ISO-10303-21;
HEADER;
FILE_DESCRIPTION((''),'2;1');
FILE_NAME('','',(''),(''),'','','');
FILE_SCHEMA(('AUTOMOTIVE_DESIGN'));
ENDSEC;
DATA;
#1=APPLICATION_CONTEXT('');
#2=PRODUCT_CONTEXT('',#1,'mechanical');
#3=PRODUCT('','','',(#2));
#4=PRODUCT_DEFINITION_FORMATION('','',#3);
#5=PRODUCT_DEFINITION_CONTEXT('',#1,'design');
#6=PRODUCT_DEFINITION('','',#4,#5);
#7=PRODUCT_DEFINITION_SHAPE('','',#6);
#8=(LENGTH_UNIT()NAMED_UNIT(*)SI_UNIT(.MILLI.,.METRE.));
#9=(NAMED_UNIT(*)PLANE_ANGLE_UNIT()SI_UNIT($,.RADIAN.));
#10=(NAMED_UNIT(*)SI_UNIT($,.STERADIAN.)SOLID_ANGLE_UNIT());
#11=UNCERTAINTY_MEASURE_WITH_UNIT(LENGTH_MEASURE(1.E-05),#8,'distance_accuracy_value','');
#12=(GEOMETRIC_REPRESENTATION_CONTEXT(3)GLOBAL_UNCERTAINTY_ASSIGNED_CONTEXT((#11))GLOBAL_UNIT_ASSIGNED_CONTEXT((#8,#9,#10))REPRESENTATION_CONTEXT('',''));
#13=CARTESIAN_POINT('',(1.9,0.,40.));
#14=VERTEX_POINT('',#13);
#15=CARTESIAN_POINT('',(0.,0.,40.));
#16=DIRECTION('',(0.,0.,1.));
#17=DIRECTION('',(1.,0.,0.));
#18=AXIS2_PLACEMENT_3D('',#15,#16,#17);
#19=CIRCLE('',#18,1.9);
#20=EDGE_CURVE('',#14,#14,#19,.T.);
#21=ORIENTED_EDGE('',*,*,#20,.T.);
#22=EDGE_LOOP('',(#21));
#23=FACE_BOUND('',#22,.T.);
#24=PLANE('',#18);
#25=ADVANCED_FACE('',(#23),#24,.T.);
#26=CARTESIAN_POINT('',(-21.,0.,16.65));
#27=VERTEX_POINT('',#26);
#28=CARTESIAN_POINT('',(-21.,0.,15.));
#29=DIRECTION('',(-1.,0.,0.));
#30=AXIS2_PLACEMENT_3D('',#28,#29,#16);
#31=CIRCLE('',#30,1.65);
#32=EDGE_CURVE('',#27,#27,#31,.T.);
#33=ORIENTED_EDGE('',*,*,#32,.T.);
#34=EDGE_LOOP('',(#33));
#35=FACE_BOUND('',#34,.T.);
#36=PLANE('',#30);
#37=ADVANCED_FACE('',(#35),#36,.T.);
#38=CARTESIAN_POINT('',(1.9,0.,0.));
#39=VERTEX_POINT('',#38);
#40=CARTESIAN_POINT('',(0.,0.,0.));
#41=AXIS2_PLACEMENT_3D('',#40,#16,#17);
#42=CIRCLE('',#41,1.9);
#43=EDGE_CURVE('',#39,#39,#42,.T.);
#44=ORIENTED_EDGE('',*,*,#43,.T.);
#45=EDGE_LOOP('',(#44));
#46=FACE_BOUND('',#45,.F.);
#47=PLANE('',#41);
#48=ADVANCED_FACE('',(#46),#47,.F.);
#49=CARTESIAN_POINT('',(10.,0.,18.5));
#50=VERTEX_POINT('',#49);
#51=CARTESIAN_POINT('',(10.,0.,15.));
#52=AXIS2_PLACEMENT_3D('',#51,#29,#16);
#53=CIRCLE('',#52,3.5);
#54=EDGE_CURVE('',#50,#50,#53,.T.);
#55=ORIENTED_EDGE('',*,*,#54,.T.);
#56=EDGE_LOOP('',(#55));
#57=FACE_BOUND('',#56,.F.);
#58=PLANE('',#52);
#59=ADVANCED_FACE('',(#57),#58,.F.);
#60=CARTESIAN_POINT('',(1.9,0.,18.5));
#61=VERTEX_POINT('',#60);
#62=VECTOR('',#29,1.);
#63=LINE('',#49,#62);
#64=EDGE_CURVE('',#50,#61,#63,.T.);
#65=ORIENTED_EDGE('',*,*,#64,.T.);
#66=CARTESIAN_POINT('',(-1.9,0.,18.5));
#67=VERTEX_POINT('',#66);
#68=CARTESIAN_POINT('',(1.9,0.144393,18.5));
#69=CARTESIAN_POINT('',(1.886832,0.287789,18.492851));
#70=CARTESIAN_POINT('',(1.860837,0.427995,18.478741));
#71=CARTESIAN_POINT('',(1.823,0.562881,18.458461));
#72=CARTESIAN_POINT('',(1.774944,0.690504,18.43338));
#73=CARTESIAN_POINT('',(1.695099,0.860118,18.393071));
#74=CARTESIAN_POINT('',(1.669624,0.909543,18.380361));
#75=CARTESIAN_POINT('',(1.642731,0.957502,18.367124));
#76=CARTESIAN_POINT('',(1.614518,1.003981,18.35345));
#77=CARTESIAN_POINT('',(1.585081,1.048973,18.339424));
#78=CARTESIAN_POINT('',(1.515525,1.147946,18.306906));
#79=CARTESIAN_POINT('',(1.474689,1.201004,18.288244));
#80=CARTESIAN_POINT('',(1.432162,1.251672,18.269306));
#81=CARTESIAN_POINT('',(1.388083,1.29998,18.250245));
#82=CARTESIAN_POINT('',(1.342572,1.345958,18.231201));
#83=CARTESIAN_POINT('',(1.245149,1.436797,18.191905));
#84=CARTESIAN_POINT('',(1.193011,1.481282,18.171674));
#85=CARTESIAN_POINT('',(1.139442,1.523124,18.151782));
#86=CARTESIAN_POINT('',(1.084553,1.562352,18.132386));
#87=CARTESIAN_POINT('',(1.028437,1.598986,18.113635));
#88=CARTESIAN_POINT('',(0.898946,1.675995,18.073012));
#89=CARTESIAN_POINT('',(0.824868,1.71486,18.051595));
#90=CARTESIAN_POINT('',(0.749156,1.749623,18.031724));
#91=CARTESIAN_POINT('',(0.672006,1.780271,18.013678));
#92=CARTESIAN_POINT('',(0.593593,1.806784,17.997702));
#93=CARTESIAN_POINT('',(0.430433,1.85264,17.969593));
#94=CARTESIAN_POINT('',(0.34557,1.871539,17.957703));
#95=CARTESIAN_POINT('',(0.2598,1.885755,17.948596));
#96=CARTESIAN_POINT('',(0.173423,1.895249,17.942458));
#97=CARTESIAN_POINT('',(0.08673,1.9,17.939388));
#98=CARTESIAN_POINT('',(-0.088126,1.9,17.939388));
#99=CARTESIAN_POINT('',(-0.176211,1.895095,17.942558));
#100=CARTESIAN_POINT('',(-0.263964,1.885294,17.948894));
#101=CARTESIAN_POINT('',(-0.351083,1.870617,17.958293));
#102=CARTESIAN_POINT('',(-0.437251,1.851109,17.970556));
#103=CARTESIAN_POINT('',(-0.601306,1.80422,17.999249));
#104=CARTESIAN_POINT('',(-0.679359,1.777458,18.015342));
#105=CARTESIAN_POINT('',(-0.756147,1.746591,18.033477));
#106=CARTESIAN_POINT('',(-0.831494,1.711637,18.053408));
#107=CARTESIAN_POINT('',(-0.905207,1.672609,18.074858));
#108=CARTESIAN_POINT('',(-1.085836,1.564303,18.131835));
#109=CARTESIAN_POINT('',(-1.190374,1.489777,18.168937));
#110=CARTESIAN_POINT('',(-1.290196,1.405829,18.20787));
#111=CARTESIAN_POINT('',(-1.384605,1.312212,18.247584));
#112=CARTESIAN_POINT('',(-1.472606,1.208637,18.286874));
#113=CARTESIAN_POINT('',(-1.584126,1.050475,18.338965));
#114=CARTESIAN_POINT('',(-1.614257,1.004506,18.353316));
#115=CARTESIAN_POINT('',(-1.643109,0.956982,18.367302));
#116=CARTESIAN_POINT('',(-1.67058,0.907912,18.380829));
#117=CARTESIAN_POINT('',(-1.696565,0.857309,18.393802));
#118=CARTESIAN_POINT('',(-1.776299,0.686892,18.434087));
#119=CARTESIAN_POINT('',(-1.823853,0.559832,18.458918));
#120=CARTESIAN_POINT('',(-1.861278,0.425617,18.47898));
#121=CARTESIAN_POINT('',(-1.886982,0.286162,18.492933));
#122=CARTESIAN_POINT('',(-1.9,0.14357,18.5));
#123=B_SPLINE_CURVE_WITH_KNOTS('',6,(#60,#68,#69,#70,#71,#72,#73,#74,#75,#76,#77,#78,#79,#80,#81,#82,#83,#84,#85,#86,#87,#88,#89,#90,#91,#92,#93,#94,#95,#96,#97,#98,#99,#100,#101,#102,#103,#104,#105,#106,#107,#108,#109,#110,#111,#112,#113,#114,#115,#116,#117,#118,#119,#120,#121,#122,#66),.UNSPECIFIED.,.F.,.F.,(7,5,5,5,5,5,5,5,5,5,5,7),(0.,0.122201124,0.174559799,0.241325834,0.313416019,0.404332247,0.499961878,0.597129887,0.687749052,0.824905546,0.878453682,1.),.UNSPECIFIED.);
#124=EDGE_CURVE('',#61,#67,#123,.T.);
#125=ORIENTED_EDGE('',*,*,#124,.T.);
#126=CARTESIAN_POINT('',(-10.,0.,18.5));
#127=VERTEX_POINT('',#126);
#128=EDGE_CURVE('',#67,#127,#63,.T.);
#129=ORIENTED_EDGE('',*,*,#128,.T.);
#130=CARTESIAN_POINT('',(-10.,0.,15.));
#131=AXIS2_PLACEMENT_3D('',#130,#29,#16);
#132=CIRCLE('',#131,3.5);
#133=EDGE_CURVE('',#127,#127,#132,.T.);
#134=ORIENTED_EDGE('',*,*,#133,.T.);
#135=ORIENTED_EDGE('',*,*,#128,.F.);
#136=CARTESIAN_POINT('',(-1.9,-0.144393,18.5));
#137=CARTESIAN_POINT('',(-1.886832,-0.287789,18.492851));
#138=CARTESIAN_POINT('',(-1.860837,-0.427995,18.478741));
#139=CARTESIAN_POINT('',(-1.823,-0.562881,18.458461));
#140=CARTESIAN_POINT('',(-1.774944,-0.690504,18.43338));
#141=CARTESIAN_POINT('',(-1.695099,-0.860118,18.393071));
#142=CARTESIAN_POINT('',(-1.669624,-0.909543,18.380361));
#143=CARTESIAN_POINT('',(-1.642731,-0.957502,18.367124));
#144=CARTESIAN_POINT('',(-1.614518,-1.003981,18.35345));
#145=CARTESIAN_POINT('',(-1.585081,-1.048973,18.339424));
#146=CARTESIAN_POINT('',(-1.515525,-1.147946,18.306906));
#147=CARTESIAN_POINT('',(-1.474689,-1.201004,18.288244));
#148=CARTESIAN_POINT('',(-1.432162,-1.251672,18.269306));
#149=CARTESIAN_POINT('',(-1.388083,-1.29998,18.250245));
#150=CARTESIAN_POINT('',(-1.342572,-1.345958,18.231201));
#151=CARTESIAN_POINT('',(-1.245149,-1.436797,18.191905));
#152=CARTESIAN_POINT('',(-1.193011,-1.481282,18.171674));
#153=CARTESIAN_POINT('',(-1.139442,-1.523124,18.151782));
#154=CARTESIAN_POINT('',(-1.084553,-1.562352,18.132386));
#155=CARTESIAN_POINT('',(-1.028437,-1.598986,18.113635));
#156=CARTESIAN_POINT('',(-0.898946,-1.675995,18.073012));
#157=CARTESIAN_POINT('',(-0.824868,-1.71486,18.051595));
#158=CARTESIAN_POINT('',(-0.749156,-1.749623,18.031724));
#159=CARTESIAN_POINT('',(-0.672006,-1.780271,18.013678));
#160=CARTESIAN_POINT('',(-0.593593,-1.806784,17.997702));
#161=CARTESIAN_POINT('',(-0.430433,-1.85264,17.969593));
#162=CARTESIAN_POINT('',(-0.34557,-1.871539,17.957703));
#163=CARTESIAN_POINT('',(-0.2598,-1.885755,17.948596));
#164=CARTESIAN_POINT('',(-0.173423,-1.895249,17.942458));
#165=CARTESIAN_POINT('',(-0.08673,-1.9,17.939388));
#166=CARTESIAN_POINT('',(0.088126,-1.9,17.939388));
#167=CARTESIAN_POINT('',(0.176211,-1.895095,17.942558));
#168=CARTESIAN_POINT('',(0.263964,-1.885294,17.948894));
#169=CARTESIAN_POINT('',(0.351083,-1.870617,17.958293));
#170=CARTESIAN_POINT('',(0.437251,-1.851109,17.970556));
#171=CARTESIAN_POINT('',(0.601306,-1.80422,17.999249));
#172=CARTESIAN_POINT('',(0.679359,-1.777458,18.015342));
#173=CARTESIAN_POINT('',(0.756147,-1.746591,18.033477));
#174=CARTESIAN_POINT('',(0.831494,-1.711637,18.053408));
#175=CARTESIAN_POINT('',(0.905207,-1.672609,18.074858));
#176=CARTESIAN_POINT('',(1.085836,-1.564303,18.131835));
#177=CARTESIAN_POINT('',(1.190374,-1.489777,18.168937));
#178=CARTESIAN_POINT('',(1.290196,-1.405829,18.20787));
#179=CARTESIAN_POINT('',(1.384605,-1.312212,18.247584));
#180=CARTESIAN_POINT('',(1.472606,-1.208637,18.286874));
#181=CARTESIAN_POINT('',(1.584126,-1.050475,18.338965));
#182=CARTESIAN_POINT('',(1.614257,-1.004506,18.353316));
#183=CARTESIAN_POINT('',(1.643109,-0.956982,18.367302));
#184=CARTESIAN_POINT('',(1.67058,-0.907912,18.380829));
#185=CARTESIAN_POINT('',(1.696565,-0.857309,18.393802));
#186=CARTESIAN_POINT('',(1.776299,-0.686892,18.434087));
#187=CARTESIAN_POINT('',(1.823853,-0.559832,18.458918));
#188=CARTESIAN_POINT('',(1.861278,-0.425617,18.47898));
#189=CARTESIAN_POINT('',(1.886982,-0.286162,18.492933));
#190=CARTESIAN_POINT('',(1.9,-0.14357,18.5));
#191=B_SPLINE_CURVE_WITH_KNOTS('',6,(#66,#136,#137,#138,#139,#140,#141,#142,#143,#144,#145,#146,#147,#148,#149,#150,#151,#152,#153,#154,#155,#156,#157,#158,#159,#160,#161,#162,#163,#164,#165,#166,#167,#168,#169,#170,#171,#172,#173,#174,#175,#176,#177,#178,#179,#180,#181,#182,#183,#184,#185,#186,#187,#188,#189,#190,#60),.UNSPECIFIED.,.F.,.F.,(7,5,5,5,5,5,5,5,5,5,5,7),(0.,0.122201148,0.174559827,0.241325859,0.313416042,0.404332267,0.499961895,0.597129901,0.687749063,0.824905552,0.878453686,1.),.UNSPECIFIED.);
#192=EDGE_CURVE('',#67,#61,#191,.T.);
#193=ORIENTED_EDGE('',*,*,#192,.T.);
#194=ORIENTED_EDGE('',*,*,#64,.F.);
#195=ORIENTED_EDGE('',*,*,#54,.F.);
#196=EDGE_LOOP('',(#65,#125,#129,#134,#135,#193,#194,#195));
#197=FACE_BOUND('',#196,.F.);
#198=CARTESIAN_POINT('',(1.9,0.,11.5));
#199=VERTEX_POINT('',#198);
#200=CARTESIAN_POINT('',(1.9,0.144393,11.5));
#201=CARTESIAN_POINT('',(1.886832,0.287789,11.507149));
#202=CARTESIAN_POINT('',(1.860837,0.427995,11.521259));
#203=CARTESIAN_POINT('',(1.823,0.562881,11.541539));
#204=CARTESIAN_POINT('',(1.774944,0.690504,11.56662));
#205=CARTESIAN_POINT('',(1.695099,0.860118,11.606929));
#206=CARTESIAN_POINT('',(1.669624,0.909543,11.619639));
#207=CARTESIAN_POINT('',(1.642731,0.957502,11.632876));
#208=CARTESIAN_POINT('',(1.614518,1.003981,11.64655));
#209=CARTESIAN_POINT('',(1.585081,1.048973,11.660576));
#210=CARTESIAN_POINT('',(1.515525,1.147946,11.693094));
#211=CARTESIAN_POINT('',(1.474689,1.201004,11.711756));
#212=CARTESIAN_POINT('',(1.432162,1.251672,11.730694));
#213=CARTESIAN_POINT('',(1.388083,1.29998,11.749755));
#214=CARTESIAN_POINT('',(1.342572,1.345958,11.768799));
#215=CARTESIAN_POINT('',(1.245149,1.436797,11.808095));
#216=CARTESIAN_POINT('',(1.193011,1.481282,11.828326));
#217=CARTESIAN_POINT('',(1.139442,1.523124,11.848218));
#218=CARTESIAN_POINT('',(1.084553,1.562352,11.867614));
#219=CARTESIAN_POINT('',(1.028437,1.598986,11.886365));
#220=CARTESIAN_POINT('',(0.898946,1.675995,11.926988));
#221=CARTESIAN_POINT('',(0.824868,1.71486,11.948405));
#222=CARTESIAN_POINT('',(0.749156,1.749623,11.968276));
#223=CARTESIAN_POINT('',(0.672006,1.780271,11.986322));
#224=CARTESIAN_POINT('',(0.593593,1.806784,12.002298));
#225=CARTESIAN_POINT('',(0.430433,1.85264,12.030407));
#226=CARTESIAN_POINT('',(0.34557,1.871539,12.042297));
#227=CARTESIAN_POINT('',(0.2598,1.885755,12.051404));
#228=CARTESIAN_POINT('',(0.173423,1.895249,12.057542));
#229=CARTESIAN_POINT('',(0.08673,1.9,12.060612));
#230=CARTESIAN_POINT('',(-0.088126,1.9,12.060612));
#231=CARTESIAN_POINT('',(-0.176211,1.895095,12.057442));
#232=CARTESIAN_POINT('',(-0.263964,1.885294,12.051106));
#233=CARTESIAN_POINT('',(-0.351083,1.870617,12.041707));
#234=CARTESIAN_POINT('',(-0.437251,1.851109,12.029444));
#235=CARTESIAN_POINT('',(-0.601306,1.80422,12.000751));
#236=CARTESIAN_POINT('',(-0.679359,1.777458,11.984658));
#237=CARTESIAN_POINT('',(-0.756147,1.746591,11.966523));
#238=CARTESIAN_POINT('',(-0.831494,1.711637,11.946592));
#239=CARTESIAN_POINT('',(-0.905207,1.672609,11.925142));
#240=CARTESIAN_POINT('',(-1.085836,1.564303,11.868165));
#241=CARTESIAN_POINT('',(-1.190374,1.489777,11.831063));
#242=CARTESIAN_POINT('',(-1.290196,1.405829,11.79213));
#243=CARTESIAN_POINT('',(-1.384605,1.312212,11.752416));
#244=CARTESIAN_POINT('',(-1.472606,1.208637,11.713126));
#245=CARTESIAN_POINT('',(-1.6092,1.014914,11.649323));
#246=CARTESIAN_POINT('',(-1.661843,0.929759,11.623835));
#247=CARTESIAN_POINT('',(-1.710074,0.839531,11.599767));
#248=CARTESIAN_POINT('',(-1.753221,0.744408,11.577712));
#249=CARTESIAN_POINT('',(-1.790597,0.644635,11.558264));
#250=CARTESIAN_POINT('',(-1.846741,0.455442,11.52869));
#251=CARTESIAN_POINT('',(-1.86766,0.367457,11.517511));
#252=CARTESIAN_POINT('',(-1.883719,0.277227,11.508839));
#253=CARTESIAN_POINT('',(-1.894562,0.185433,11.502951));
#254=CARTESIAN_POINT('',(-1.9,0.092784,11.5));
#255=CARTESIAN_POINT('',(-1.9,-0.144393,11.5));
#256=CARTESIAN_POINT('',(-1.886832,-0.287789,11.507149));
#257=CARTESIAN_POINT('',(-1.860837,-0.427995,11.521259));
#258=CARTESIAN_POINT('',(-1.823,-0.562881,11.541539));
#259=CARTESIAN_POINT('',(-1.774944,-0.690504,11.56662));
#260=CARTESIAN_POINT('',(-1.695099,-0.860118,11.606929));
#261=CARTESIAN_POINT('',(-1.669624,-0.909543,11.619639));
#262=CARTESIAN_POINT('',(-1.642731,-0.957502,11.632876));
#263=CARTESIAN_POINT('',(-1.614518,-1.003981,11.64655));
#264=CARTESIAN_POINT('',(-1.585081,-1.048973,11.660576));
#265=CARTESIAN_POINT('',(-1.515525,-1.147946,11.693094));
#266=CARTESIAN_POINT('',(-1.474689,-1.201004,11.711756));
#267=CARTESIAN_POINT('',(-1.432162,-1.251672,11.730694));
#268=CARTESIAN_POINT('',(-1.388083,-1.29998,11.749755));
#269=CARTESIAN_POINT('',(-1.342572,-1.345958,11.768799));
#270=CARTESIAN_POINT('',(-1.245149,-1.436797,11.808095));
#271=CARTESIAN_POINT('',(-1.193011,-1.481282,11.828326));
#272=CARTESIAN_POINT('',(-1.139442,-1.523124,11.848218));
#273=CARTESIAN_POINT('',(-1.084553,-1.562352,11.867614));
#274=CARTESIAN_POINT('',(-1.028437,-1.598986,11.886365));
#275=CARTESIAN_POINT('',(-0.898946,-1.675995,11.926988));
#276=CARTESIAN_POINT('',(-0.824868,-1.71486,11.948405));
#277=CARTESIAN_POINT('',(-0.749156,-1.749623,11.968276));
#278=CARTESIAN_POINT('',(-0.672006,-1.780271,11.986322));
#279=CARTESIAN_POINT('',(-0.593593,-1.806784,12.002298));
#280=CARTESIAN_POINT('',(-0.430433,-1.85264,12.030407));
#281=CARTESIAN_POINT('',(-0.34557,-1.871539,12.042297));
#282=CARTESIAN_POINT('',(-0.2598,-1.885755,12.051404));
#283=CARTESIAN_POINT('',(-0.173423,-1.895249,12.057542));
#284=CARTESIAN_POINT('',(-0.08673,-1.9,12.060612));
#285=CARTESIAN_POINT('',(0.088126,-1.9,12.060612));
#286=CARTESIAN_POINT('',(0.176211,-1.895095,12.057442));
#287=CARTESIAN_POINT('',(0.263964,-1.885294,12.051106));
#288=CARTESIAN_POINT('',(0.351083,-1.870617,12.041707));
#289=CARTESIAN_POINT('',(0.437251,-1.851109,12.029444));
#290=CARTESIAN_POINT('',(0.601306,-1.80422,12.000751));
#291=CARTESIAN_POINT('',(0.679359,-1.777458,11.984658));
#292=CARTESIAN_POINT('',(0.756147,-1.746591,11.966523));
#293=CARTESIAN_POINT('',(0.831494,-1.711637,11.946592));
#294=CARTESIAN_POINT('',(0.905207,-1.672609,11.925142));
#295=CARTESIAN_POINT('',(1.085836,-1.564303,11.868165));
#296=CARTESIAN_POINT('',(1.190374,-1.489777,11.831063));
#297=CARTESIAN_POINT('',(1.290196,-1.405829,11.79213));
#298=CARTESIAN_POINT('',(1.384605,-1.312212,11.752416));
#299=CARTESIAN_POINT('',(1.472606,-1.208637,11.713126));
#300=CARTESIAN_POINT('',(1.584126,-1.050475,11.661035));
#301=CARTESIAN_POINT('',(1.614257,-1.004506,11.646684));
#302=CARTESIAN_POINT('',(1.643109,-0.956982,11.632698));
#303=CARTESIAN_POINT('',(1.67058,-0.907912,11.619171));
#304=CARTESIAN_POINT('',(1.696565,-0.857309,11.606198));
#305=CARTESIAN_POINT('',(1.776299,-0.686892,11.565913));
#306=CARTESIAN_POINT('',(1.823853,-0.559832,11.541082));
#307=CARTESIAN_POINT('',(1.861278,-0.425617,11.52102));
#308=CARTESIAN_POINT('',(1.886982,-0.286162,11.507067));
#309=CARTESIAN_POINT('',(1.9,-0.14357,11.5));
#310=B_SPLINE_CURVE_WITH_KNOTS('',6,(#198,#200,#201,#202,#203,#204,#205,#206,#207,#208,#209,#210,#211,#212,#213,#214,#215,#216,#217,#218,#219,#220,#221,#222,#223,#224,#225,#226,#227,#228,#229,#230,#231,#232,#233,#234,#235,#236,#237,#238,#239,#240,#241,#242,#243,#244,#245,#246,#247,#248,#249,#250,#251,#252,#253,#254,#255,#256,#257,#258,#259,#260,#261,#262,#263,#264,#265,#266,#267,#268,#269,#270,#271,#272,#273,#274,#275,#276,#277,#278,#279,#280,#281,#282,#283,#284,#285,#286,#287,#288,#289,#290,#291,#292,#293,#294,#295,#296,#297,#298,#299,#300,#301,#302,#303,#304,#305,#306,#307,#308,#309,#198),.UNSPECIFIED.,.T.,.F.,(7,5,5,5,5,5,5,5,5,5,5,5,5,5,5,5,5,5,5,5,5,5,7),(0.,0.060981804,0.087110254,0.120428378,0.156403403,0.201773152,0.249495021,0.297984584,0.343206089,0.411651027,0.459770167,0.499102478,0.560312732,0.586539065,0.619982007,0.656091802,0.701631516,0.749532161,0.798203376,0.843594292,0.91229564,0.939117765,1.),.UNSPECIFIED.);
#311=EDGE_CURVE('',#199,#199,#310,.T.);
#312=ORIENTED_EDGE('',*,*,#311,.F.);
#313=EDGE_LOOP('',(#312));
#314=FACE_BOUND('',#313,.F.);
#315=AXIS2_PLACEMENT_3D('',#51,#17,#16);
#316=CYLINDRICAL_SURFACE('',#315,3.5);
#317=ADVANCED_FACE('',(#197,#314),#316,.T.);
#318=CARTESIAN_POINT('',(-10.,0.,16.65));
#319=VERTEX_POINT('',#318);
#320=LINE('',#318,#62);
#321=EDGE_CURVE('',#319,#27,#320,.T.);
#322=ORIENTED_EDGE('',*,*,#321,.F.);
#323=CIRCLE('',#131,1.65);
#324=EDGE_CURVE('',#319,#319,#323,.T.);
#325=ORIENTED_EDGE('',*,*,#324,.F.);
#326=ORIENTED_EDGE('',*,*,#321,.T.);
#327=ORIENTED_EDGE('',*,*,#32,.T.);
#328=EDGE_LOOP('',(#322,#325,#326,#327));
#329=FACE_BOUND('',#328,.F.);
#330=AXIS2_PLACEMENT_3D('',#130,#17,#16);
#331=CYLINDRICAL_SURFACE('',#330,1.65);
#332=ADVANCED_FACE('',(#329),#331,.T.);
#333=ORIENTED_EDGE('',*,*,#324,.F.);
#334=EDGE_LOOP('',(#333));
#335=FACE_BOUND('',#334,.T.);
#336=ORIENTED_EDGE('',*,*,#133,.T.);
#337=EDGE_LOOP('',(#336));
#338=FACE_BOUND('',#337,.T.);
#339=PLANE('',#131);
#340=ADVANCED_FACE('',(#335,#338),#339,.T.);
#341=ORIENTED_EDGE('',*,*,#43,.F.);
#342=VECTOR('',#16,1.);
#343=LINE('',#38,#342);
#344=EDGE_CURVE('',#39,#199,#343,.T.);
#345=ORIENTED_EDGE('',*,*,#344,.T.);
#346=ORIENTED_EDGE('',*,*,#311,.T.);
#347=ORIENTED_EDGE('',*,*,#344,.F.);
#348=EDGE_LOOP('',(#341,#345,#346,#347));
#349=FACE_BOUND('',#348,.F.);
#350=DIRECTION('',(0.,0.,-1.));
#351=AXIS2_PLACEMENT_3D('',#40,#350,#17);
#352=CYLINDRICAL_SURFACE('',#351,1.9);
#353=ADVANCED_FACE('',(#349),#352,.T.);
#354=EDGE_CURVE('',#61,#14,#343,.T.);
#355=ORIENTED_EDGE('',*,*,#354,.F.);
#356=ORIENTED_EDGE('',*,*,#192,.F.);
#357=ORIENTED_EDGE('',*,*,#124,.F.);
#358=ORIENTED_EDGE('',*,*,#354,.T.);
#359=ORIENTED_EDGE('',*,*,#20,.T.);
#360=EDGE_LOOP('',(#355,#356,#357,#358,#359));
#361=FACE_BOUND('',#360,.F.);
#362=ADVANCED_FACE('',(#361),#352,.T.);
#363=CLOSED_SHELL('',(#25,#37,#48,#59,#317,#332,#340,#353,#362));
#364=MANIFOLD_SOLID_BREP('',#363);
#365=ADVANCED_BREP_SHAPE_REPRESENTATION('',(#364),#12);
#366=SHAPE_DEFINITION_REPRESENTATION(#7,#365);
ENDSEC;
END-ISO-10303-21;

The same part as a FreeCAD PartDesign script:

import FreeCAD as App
import Part
import Sketcher
Q = App.Units.Quantity

doc = App.newDocument("Part")
body = doc.addObject("PartDesign::Body", "Body")

sketch1 = body.newObject("Sketcher::SketchObject", "Sketch")
sketch1.AttachmentSupport = (doc.getObject("YZ_Plane"), [""])
sketch1.MapMode = "FlatFace"
sketch1.AttachmentOffset = App.Placement(App.Vector(0, 0, -10), App.Rotation())
sketch1.addGeometry(Part.Circle(App.Vector(0, 15, 0), App.Vector(0, 0, 1), 1.6), False)
sketch1.addConstraint([
    Sketcher.Constraint("PointOnObject", 0, 3, -2),
    Sketcher.Constraint("Diameter", 0, Q("3.3 mm")),
    Sketcher.Constraint("DistanceY", -1, 1, 0, 3, Q("15 mm")),
])
pad1 = body.newObject("PartDesign::Pad", "Pad")
pad1.Profile = sketch1
pad1.Length = 11
pad1.Reversed = True
body2 = doc.addObject("PartDesign::Body", "Body001")

sketch2 = body2.newObject("Sketcher::SketchObject", "Sketch001")
sketch2.AttachmentSupport = (doc.getObject("YZ_Plane001"), [""])
sketch2.MapMode = "FlatFace"
sketch2.AttachmentOffset = App.Placement(App.Vector(0, 0, 10), App.Rotation())
sketch2.addGeometry(Part.Circle(App.Vector(0, 15, 0), App.Vector(0, 0, 1), 3.5), False)
sketch2.addConstraint([
    Sketcher.Constraint("PointOnObject", 0, 3, -2),
    Sketcher.Constraint("Diameter", 0, Q("7 mm")),
    Sketcher.Constraint("DistanceY", -1, 1, 0, 3, Q("15 mm")),
])
pad2 = body2.newObject("PartDesign::Pad", "Pad001")
pad2.Profile = sketch2
pad2.Length = 20
pad2.Reversed = True
body3 = doc.addObject("PartDesign::Body", "Body002")
body3.AllowCompound = True

sketch3 = body3.newObject("Sketcher::SketchObject", "Sketch002")
sketch3.AttachmentSupport = (doc.getObject("XY_Plane002"), [""])
sketch3.MapMode = "FlatFace"
sketch3.addGeometry(Part.Circle(App.Vector(0, 0, 0), App.Vector(0, 0, 1), 1.9), False)
sketch3.addConstraint([
    Sketcher.Constraint("Coincident", 0, 3, -1, 1),
    Sketcher.Constraint("Diameter", 0, Q("3.8 mm")),
])
pad3 = body3.newObject("PartDesign::Pad", "Pad002")
pad3.Profile = sketch3
pad3.Length = 40
doc.recompute()

boolean = body3.newObject("PartDesign::Boolean", "Boolean")
boolean.Type = "Fuse"
boolean.addObjects([body])
doc.recompute()

boolean2 = body3.newObject("PartDesign::Boolean", "Boolean001")
boolean2.Type = "Fuse"
boolean2.addObjects([body2])

doc.recompute()
